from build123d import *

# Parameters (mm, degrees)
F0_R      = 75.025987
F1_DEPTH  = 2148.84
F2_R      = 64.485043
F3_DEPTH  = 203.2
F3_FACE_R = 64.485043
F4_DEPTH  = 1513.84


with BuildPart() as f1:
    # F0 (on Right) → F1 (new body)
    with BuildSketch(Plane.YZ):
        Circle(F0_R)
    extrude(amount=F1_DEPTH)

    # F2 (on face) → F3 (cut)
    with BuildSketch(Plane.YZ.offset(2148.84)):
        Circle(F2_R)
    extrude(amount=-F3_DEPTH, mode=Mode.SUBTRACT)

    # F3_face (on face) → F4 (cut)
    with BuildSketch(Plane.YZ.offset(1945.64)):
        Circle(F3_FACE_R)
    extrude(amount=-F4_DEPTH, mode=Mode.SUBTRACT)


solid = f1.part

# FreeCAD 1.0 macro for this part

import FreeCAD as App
import Part
import Sketcher
Q = App.Units.Quantity

doc = App.newDocument("Part")
body = doc.addObject("PartDesign::Body", "Body")

sketch1 = body.newObject("Sketcher::SketchObject", "Sketch")
sketch1.AttachmentSupport = (doc.getObject("YZ_Plane"), [""])
sketch1.MapMode = "FlatFace"
sketch1.addGeometry(Part.Circle(App.Vector(0, 0, 0), App.Vector(0, 0, 1), 75), False)
sketch1.addConstraint(Sketcher.Constraint("Coincident", 0, 3, -1, 1))
sketch1.addConstraint(Sketcher.Constraint("Diameter", 0, Q("150.051974 mm")))
pad1 = body.newObject("PartDesign::Pad", "Pad")
pad1.Profile = sketch1
pad1.Length = Q("84.6 in")

sketch2 = body.newObject("Sketcher::SketchObject", "Sketch001")
sketch2.AttachmentSupport = (doc.getObject("YZ_Plane"), [""])
sketch2.MapMode = "FlatFace"
sketch2.AttachmentOffset = App.Placement(App.Vector(0, 0, 84.6 * 25.4), App.Rotation())
sketch2.addGeometry(Part.Circle(App.Vector(0, 0, 0), App.Vector(0, 0, 1), 64), False)
sketch2.addConstraint(Sketcher.Constraint("Coincident", 0, 3, -1, 1))
sketch2.addConstraint(Sketcher.Constraint("Diameter", 0, Q("128.970086 mm")))
pocket1 = body.newObject("PartDesign::Pocket", "Pocket")
pocket1.Profile = sketch2
pocket1.Length = Q("8 in")

sketch3 = body.newObject("Sketcher::SketchObject", "Sketch002")
sketch3.AttachmentSupport = (doc.getObject("YZ_Plane"), [""])
sketch3.MapMode = "FlatFace"
sketch3.AttachmentOffset = App.Placement(App.Vector(0, 0, 76.6 * 25.4), App.Rotation())
sketch3.addGeometry(Part.Circle(App.Vector(0, 0, 0), App.Vector(0, 0, 1), 64), False)
sketch3.addConstraint(Sketcher.Constraint("Coincident", 0, 3, -1, 1))
sketch3.addConstraint(Sketcher.Constraint("Diameter", 0, Q("128.970086 mm")))
pocket2 = body.newObject("PartDesign::Pocket", "Pocket001")
pocket2.Profile = sketch3
pocket2.Length = Q("59.6 in")

doc.recompute()
